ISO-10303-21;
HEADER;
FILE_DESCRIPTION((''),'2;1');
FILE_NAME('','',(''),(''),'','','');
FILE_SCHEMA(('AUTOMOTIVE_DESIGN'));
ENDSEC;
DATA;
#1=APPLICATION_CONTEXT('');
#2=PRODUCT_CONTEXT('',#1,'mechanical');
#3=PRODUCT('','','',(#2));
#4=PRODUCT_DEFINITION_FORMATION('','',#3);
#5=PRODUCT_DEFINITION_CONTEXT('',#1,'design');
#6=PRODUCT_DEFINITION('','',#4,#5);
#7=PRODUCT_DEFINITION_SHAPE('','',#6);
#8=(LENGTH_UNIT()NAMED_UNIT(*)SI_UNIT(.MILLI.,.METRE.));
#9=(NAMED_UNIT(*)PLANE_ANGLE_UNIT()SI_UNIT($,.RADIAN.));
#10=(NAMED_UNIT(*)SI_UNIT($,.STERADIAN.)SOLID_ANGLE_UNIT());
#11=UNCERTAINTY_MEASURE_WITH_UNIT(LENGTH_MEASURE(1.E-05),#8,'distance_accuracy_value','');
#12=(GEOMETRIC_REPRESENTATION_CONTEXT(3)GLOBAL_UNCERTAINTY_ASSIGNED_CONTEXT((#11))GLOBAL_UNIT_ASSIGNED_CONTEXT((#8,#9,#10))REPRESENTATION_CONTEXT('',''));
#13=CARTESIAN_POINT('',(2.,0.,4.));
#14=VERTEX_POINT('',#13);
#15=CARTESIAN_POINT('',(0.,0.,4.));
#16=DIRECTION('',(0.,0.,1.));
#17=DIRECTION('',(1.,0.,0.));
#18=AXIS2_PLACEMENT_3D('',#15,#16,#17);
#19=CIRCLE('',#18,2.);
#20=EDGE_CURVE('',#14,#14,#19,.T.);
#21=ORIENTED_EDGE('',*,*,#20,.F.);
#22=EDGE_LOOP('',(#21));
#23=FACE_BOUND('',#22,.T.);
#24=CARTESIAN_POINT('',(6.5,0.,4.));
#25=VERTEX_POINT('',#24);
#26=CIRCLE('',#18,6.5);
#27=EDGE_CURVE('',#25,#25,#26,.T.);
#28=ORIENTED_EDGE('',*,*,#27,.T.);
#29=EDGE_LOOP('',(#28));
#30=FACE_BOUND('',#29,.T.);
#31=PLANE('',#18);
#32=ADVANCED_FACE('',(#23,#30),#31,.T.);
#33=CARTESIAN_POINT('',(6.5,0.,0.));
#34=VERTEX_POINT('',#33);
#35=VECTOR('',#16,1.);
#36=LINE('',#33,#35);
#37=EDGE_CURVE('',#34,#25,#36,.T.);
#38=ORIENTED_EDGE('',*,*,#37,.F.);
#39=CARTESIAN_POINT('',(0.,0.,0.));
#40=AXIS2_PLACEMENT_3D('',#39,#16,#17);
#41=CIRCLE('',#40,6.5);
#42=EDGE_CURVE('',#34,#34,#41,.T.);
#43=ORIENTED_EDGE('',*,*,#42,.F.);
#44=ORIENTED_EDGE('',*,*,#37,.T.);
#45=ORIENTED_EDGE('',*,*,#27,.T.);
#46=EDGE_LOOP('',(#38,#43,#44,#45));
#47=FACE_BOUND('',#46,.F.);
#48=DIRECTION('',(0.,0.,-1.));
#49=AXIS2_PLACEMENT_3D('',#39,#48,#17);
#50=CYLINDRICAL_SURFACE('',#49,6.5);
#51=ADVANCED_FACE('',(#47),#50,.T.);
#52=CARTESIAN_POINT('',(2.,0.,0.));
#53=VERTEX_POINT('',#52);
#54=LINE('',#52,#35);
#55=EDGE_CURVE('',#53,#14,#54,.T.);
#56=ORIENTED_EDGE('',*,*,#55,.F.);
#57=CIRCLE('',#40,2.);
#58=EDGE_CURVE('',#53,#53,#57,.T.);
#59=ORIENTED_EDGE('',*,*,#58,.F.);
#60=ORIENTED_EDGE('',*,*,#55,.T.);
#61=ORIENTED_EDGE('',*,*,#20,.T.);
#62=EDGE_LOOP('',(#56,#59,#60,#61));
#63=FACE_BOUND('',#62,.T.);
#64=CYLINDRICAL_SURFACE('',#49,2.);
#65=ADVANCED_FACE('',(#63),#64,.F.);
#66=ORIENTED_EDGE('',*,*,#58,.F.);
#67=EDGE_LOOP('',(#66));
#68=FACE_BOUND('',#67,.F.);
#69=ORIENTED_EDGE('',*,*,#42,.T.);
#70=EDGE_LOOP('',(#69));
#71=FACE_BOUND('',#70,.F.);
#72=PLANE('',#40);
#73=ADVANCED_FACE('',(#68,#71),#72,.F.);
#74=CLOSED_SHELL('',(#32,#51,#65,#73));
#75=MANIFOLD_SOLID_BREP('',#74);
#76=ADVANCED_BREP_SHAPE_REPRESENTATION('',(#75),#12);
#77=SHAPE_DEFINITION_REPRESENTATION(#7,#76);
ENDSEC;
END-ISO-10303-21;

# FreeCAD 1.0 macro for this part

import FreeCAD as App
import Part
import Sketcher

V = App.Vector

doc = App.newDocument("Part")
body = doc.addObject("PartDesign::Body", "Body")

sketch1 = doc.addObject("Sketcher::SketchObject", "Sketch")
body.addObject(sketch1)
sketch1.AttachmentSupport = (doc.XY_Plane, [""])
sketch1.MapMode = "FlatFace"
sketch1.addGeometry([
    Part.Circle(V(0, 0, 0), V(0, 0, 1), 6.5),
    Part.Circle(V(0, 0, 0), V(0, 0, 1), 2),
], False)
sketch1.addConstraint([
    Sketcher.Constraint("Coincident", 0, 3, -1, 1),
    Sketcher.Constraint("Coincident", 1, 3, -1, 1),
    Sketcher.Constraint("Diameter", 0, 13.0),
    Sketcher.Constraint("Diameter", 1, 4.0),
])
pad1 = doc.addObject("PartDesign::Pad", "Pad")
body.addObject(pad1)
pad1.Profile = sketch1
pad1.Length = 4

doc.recompute()
